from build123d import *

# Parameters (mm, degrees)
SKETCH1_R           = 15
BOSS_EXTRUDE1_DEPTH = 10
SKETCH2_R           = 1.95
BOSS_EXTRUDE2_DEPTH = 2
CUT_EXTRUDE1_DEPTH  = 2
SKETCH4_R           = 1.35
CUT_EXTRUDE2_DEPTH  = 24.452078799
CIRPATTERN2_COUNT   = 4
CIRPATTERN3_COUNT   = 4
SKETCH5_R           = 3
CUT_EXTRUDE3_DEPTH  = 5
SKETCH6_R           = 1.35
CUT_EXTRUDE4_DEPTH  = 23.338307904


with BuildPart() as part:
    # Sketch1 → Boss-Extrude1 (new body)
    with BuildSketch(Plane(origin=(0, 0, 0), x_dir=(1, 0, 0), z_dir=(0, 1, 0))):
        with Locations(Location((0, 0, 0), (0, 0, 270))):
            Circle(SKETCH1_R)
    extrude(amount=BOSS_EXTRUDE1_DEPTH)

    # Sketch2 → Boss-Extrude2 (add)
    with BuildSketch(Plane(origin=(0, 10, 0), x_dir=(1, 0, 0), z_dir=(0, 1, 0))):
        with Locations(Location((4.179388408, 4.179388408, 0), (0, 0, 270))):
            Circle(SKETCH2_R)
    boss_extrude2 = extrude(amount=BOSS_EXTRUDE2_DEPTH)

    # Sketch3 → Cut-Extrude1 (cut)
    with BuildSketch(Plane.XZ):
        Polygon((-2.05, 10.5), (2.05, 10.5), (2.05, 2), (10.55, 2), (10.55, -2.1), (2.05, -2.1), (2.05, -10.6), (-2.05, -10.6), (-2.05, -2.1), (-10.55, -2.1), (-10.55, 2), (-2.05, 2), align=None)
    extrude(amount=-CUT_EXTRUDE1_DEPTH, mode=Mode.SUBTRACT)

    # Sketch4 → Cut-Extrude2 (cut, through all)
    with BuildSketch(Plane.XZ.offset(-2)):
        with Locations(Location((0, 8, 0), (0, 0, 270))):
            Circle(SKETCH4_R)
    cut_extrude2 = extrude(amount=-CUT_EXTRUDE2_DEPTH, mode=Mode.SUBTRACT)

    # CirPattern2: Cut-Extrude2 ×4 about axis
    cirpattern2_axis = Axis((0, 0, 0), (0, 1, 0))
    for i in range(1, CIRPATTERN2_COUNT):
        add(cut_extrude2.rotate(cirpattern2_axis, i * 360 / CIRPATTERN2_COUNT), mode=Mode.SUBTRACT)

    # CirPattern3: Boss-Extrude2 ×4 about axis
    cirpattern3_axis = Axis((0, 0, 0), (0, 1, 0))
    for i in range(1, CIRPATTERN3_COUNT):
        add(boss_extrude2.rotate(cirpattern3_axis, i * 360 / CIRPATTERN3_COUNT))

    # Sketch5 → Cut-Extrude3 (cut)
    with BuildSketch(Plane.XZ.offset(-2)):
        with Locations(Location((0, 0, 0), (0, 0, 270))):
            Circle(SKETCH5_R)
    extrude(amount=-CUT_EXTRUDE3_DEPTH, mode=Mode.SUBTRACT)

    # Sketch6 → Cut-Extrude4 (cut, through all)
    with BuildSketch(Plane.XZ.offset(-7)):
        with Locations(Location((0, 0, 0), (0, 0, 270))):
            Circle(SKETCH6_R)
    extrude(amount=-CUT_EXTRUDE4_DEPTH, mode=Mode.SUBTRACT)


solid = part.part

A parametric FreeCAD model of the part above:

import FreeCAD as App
import Part
import Sketcher
Q = App.Units.Quantity

doc = App.newDocument("Part")
params = doc.addObject("Spreadsheet::Sheet", "Params")
for row, (alias, value) in enumerate([
    ("sketch1_diameter", "30 mm"),
    ("pad1_length", "10 mm"),
    ("sketch2_diameter", "3.9 mm"),
    ("pad2_length", "2 mm"),
    ("sketch3_width", "4.1 mm"),
    ("sketch3_width2", "8.5 mm"),
    ("pocket1_length", "2 mm"),
    ("sketch4_diameter", "2.7 mm"),
    ("sketch5_diameter", "6 mm"),
    ("pocket3_length", "5 mm"),
    ("sketch6_diameter", "2.7 mm"),
], start=1):
    params.set(f"A{row}", alias)
    params.set(f"B{row}", "=" + value)
    params.setAlias(f"B{row}", alias)

body = doc.addObject("PartDesign::Body", "Body")

# Sketch on XZ plane
sketch1 = doc.addObject("Sketcher::SketchObject", "Sketch")
body.addObject(sketch1)
sketch1.AttachmentSupport = (doc.XZ_Plane, [""])
sketch1.MapMode = "FlatFace"
sketch1.addGeometry(Part.Circle(App.Vector(0, 0, 0), App.Vector(0, 0, 1), 15), False)
sketch1.addConstraint([
    Sketcher.Constraint("Coincident", 0, 3, -1, 1),
    Sketcher.Constraint("Diameter", 0, Q("30 mm")),
])
sketch1.setExpression("Constraints[1]", "Params.sketch1_diameter")
pad1 = doc.addObject("PartDesign::Pad", "Pad")
body.addObject(pad1)
pad1.Profile = sketch1
pad1.setExpression("Length", "Params.pad1_length")
pad1.Reversed = True

# Sketch on XZ plane
sketch2 = doc.addObject("Sketcher::SketchObject", "Sketch001")
body.addObject(sketch2)
sketch2.AttachmentSupport = (doc.XZ_Plane, [""])
sketch2.MapMode = "FlatFace"
sketch2.AttachmentOffset = App.Placement(App.Vector(0, 0, -10), App.Rotation())
sketch2.addGeometry(Part.Circle(App.Vector(4.179388, -4.179388, 0), App.Vector(0, 0, 1), 1.95), False)
sketch2.addConstraint([
    Sketcher.Constraint("Diameter", 0, Q("3.9 mm")),
    Sketcher.Constraint("DistanceX", -1, 1, 0, 3, Q("4.179388 mm")),
    Sketcher.Constraint("DistanceY", 0, 3, -1, 1, Q("4.179388 mm")),
])
sketch2.setExpression("Constraints[0]", "Params.sketch2_diameter")
pad2 = doc.addObject("PartDesign::Pad", "Pad001")
body.addObject(pad2)
pad2.Profile = sketch2
pad2.setExpression("Length", "Params.pad2_length")
pad2.Reversed = True

# Sketch on XZ plane
sketch3 = doc.addObject("Sketcher::SketchObject", "Sketch002")
body.addObject(sketch3)
sketch3.AttachmentSupport = (doc.XZ_Plane, [""])
sketch3.MapMode = "FlatFace"
sketch3.addGeometry([
    Part.LineSegment(App.Vector(2.05, 10.5, 0), App.Vector(-2.05, 10.5, 0)),  # 0
    Part.LineSegment(App.Vector(-2.05, 10.5, 0), App.Vector(-2.05, 2, 0)),  # 1
    Part.LineSegment(App.Vector(-2.05, 2, 0), App.Vector(-10.55, 2, 0)),  # 2
    Part.LineSegment(App.Vector(-10.55, 2, 0), App.Vector(-10.55, -2.1, 0)),  # 3
    Part.LineSegment(App.Vector(-10.55, -2.1, 0), App.Vector(-2.05, -2.1, 0)),  # 4
    Part.LineSegment(App.Vector(-2.05, -2.1, 0), App.Vector(-2.05, -10.6, 0)),  # 5
    Part.LineSegment(App.Vector(-2.05, -10.6, 0), App.Vector(2.05, -10.6, 0)),  # 6
    Part.LineSegment(App.Vector(2.05, -10.6, 0), App.Vector(2.05, -2.1, 0)),  # 7
    Part.LineSegment(App.Vector(2.05, -2.1, 0), App.Vector(10.55, -2.1, 0)),  # 8
    Part.LineSegment(App.Vector(10.55, -2.1, 0), App.Vector(10.55, 2, 0)),  # 9
    Part.LineSegment(App.Vector(10.55, 2, 0), App.Vector(2.05, 2, 0)),  # 10
    Part.LineSegment(App.Vector(2.05, 2, 0), App.Vector(2.05, 10.5, 0)),  # 11
], False)
sketch3.addConstraint([
    Sketcher.Constraint("Coincident", 0, 2, 1, 1),
    Sketcher.Constraint("Coincident", 1, 2, 2, 1),
    Sketcher.Constraint("Coincident", 2, 2, 3, 1),
    Sketcher.Constraint("Coincident", 3, 2, 4, 1),
    Sketcher.Constraint("Coincident", 4, 2, 5, 1),
    Sketcher.Constraint("Coincident", 5, 2, 6, 1),
    Sketcher.Constraint("Coincident", 6, 2, 7, 1),
    Sketcher.Constraint("Coincident", 7, 2, 8, 1),
    Sketcher.Constraint("Coincident", 8, 2, 9, 1),
    Sketcher.Constraint("Coincident", 9, 2, 10, 1),
    Sketcher.Constraint("Coincident", 10, 2, 11, 1),
    Sketcher.Constraint("Coincident", 11, 2, 0, 1),
    Sketcher.Constraint("Horizontal", 0),
    Sketcher.Constraint("Vertical", 1),
    Sketcher.Constraint("Horizontal", 2),
    Sketcher.Constraint("Vertical", 3),
    Sketcher.Constraint("Horizontal", 4),
    Sketcher.Constraint("Vertical", 5),
    Sketcher.Constraint("Horizontal", 6),
    Sketcher.Constraint("Vertical", 7),
    Sketcher.Constraint("Horizontal", 8),
    Sketcher.Constraint("Vertical", 9),
    Sketcher.Constraint("Horizontal", 10),
    Sketcher.Constraint("Vertical", 11),
    Sketcher.Constraint("Symmetric", 4, 2, 7, 2, -2),
    Sketcher.Constraint("Symmetric", 2, 2, 9, 2, -2),
    Sketcher.Constraint("Vertical", 1, 2, 4, 2),
    Sketcher.Constraint("Vertical", 7, 2, 10, 2),
    Sketcher.Constraint("Equal", 10, 1),
    Sketcher.Constraint("Equal", 6, 3),
    Sketcher.Constraint("Equal", 1, 5),
    Sketcher.Constraint("DistanceX", 0, 2, 0, 1, Q("4.1 mm")),
    Sketcher.Constraint("DistanceX", 2, 2, 2, 1, Q("8.5 mm")),
    Sketcher.Constraint("DistanceY", -1, 1, 1, 2, Q("2 mm")),
])
sketch3.setExpression("Constraints[31]", "Params.sketch3_width")
sketch3.setExpression("Constraints[32]", "Params.sketch3_width2")
pocket1 = doc.addObject("PartDesign::Pocket", "Pocket")
body.addObject(pocket1)
pocket1.Profile = sketch3
pocket1.setExpression("Length", "Params.pocket1_length")

# Sketch on XZ plane
sketch4 = doc.addObject("Sketcher::SketchObject", "Sketch003")
body.addObject(sketch4)
sketch4.AttachmentSupport = (doc.XZ_Plane, [""])
sketch4.MapMode = "FlatFace"
sketch4.AttachmentOffset = App.Placement(App.Vector(0, 0, -2), App.Rotation())
sketch4.addGeometry(Part.Circle(App.Vector(0, 8, 0), App.Vector(0, 0, 1), 1.35), False)
sketch4.addConstraint([
    Sketcher.Constraint("PointOnObject", 0, 3, -2),
    Sketcher.Constraint("Diameter", 0, Q("2.7 mm")),
    Sketcher.Constraint("DistanceY", -1, 1, 0, 3, Q("8 mm")),
])
sketch4.setExpression("Constraints[1]", "Params.sketch4_diameter")
pocket2 = doc.addObject("PartDesign::Pocket", "Pocket001")
body.addObject(pocket2)
pocket2.Profile = sketch4
pocket2.Type = "ThroughAll"
doc.recompute()

polarpattern = doc.addObject("PartDesign::PolarPattern", "PolarPattern")
body.addObject(polarpattern)
polarpattern.Originals = [pocket2]
polarpattern.Axis = (doc.Y_Axis, [""])
polarpattern.Angle = 360
polarpattern.Occurrences = 4
body.Tip = polarpattern
doc.recompute()

polarpattern2 = doc.addObject("PartDesign::PolarPattern", "PolarPattern001")
body.addObject(polarpattern2)
polarpattern2.Originals = [pad2]
polarpattern2.Axis = (doc.Y_Axis, [""])
polarpattern2.Angle = 360
polarpattern2.Occurrences = 4
body.Tip = polarpattern2

# Sketch on XZ plane
sketch5 = doc.addObject("Sketcher::SketchObject", "Sketch004")
body.addObject(sketch5)
sketch5.AttachmentSupport = (doc.XZ_Plane, [""])
sketch5.MapMode = "FlatFace"
sketch5.AttachmentOffset = App.Placement(App.Vector(0, 0, -2), App.Rotation())
sketch5.addGeometry(Part.Circle(App.Vector(0, 0, 0), App.Vector(0, 0, 1), 3), False)
sketch5.addConstraint([
    Sketcher.Constraint("Coincident", 0, 3, -1, 1),
    Sketcher.Constraint("Diameter", 0, Q("6 mm")),
])
sketch5.setExpression("Constraints[1]", "Params.sketch5_diameter")
pocket3 = doc.addObject("PartDesign::Pocket", "Pocket002")
body.addObject(pocket3)
pocket3.Profile = sketch5
pocket3.setExpression("Length", "Params.pocket3_length")

# Sketch on XZ plane
sketch6 = doc.addObject("Sketcher::SketchObject", "Sketch005")
body.addObject(sketch6)
sketch6.AttachmentSupport = (doc.XZ_Plane, [""])
sketch6.MapMode = "FlatFace"
sketch6.AttachmentOffset = App.Placement(App.Vector(0, 0, -7), App.Rotation())
sketch6.addGeometry(Part.Circle(App.Vector(0, 0, 0), App.Vector(0, 0, 1), 1.35), False)
sketch6.addConstraint([
    Sketcher.Constraint("Coincident", 0, 3, -1, 1),
    Sketcher.Constraint("Diameter", 0, Q("2.7 mm")),
])
sketch6.setExpression("Constraints[1]", "Params.sketch6_diameter")
pocket4 = doc.addObject("PartDesign::Pocket", "Pocket003")
body.addObject(pocket4)
pocket4.Profile = sketch6
pocket4.Type = "ThroughAll"

doc.recompute()
